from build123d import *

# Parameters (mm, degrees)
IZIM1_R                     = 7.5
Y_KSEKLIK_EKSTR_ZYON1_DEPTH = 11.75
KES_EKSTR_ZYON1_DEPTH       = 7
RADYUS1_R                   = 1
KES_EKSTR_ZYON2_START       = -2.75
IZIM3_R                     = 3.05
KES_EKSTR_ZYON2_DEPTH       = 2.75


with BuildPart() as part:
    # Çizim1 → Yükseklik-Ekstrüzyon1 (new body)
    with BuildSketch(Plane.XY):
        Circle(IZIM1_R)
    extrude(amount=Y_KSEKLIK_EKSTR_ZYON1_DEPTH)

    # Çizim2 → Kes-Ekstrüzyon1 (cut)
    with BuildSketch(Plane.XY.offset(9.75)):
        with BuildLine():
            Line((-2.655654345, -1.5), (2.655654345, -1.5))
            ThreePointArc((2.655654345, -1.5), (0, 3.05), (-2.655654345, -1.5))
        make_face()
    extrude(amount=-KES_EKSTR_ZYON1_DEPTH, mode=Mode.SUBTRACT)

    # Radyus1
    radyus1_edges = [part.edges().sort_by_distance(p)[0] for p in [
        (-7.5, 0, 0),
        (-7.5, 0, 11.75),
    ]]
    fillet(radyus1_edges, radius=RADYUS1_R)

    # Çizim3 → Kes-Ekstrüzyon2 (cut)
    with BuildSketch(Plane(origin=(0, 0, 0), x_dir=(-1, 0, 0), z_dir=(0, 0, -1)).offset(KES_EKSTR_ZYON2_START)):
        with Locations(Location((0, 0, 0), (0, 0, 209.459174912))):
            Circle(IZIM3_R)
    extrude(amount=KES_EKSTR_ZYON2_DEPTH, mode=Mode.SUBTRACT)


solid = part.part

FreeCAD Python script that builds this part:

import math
import FreeCAD as App
import Part
import Sketcher

V = App.Vector


def edges_at(feature, points):
    """Names of the edges that pass closest to the given points."""
    edges = feature.Shape.Edges
    near = lambda p: min(range(len(edges)), key=lambda i: edges[i].distToShape(Part.Vertex(*p))[0])
    return sorted({f"Edge{near(p) + 1}" for p in points})

doc = App.newDocument("Part")
body = doc.addObject("PartDesign::Body", "Body")

# Sketch on XY plane
sketch1 = body.newObject("Sketcher::SketchObject", "Sketch")
sketch1.AttachmentSupport = (doc.getObject("XY_Plane"), [""])
sketch1.MapMode = "FlatFace"
sketch1.addGeometry(Part.Circle(V(0, 0, 0), V(0, 0, 1), 8), False)
sketch1.addConstraint(Sketcher.Constraint("Coincident", 0, 3, -1, 1))
sketch1.addConstraint(Sketcher.Constraint("Diameter", 0, 15.0))
pad1 = body.newObject("PartDesign::Pad", "Pad")
pad1.Profile = sketch1
pad1.Length = 11.75

# Sketch on XY plane
sketch2 = body.newObject("Sketcher::SketchObject", "Sketch001")
sketch2.AttachmentSupport = (doc.getObject("XY_Plane"), [""])
sketch2.MapMode = "FlatFace"
sketch2.AttachmentOffset = App.Placement(V(0, 0, 9.75), App.Rotation())
sketch2.addGeometry(Part.LineSegment(V(-2.7, -1.5, 0), V(2.7, -1.5, 0)), False)
sketch2.addGeometry(Part.ArcOfCircle(Part.Circle(V(0, 0, 0), V(0, 0, 1), 3), math.radians(-29), math.radians(209)), False)
sketch2.addConstraint(Sketcher.Constraint("Coincident", 0, 1, 1, 2))
sketch2.addConstraint(Sketcher.Constraint("Coincident", 1, 1, 0, 2))
sketch2.addConstraint(Sketcher.Constraint("Horizontal", 0))
sketch2.addConstraint(Sketcher.Constraint("Coincident", 1, 3, -1, 1))
sketch2.addConstraint(Sketcher.Constraint("Radius", 1, 3.05))
sketch2.addConstraint(Sketcher.Constraint("DistanceY", 0, 1, -1, 1, 1.5))
pocket1 = body.newObject("PartDesign::Pocket", "Pocket")
pocket1.Profile = sketch2
pocket1.Length = 7
doc.recompute()

fillet = body.newObject("PartDesign::Fillet", "Fillet")
fillet.Base = (pocket1, edges_at(pocket1, [(-7.5, 0, 0), (-7.5, 0, 11.75)]))
fillet.Radius = 1

# Sketch on XY plane
sketch3 = body.newObject("Sketcher::SketchObject", "Sketch002")
sketch3.AttachmentSupport = (doc.getObject("XY_Plane"), [""])
sketch3.MapMode = "FlatFace"
sketch3.AttachmentOffset = App.Placement(V(0, 0, 2.75), App.Rotation())
sketch3.addGeometry(Part.Circle(V(0, 0, 0), V(0, 0, 1), 3), False)
sketch3.addConstraint(Sketcher.Constraint("Coincident", 0, 3, -1, 1))
sketch3.addConstraint(Sketcher.Constraint("Diameter", 0, 6.1))
pocket2 = body.newObject("PartDesign::Pocket", "Pocket001")
pocket2.Profile = sketch3
pocket2.Length = 2.75

doc.recompute()
